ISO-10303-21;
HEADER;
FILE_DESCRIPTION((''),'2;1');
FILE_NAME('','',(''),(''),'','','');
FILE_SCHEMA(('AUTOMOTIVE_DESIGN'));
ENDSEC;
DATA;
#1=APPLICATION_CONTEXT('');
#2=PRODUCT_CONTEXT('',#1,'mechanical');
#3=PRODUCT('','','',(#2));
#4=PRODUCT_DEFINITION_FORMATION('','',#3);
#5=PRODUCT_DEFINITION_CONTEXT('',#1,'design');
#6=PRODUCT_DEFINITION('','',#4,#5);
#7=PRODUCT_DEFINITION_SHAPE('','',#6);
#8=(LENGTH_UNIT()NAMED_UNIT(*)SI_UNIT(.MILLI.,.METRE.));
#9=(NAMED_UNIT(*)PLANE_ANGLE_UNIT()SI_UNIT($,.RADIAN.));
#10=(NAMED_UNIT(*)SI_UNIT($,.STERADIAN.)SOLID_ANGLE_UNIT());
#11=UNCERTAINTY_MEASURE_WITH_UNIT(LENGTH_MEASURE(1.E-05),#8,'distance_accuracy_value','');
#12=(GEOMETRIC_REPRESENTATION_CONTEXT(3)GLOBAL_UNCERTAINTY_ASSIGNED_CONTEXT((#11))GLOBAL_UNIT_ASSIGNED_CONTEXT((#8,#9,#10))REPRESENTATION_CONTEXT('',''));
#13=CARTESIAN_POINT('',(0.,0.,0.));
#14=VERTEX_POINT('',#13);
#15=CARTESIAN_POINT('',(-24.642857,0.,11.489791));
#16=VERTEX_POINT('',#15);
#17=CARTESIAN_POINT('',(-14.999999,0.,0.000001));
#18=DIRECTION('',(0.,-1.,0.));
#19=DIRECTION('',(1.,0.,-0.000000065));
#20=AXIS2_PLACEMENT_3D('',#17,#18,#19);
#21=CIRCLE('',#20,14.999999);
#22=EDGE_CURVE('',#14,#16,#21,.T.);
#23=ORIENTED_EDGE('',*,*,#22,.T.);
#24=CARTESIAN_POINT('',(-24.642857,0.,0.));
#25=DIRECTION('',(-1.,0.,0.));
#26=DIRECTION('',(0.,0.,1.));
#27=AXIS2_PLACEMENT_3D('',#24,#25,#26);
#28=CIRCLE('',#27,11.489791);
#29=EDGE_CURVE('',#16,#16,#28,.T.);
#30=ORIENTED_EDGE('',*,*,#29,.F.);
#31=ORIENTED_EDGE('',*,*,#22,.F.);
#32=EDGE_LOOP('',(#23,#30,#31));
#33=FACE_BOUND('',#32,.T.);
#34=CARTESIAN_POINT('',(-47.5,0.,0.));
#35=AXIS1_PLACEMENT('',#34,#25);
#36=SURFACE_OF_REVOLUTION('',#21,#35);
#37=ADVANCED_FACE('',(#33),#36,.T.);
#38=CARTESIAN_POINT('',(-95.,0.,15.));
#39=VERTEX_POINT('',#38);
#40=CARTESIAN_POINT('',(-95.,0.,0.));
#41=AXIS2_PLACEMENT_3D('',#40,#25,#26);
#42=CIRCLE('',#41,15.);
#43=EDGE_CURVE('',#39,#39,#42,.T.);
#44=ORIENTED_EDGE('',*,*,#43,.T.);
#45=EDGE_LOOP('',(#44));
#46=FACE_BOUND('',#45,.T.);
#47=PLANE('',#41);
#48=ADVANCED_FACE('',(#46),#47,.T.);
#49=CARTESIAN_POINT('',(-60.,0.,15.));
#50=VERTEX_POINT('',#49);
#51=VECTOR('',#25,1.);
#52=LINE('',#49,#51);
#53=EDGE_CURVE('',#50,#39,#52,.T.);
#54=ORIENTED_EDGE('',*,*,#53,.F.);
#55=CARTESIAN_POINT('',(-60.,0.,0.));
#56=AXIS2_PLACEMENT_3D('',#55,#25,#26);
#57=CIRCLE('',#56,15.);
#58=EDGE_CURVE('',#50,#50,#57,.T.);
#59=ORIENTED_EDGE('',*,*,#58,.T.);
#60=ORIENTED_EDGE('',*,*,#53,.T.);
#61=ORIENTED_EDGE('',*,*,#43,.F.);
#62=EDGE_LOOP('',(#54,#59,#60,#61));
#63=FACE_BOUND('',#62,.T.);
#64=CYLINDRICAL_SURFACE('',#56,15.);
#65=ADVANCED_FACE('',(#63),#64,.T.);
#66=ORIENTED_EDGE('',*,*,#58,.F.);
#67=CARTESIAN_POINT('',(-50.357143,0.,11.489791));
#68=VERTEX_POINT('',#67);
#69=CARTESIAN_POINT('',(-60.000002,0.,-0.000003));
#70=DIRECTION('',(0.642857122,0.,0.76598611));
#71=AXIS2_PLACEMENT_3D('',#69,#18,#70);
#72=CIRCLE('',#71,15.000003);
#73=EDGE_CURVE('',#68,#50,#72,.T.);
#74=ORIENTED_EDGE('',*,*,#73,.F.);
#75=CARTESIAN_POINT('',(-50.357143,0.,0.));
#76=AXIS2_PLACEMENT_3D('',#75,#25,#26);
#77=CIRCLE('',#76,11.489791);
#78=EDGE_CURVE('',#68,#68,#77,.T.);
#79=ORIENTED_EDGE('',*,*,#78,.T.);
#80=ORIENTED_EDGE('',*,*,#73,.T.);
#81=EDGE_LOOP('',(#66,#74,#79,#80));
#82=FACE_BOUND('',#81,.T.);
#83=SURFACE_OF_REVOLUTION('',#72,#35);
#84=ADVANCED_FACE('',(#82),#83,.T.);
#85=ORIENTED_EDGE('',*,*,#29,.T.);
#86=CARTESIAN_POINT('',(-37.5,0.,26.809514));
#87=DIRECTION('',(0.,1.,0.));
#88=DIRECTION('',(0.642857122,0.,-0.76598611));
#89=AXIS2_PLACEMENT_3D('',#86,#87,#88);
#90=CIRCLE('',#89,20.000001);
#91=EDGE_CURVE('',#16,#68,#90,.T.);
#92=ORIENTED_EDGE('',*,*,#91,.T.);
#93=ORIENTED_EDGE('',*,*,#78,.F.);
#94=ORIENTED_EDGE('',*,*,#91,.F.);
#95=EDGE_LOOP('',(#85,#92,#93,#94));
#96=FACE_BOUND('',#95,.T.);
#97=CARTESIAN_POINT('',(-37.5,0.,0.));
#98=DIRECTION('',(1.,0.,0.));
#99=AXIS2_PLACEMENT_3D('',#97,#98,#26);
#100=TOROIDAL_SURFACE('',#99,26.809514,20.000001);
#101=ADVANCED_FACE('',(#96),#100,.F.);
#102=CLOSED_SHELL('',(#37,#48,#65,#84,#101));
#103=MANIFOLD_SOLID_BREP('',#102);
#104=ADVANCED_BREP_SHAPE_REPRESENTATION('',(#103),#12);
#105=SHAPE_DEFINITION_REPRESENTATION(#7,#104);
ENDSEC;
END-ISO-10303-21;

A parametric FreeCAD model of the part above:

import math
import FreeCAD as App
import Part
import Sketcher

doc = App.newDocument("Part")
params = doc.addObject("Spreadsheet::Sheet", "Params")
for row, (alias, value) in enumerate([
    ("sketch1_radius", "14.999999 mm"),
    ("sketch1_radius2", "20.000001 mm"),
    ("sketch1_width", "95 mm"),
    ("sketch1_width2", "35 mm"),
    ("sketch1_height", "15 mm"),
    ("revolution_angle", "360 deg"),
], start=1):
    params.set(f"A{row}", alias)
    params.set(f"B{row}", "=" + value)
    params.setAlias(f"B{row}", alias)

body = doc.addObject("PartDesign::Body", "Body")

# Sketch on XZ plane
sketch1 = body.newObject("Sketcher::SketchObject", "Sketch")
sketch1.AttachmentSupport = (doc.getObject("XZ_Plane"), [""])
sketch1.MapMode = "FlatFace"
sketch1.addGeometry([
    Part.LineSegment(App.Vector(-95, 0, 0), App.Vector(0, 0, 0)),  # 0
    Part.ArcOfCircle(Part.Circle(App.Vector(-15, 0, 0), App.Vector(0, 0, 1), 15), math.radians(0), math.radians(130)),  # 1
    Part.ArcOfCircle(Part.Circle(App.Vector(-38, 27, 0), App.Vector(0, 0, 1), 20), math.radians(-130), math.radians(-50)),  # 2
    Part.ArcOfCircle(Part.Circle(App.Vector(-60, 0, 0), App.Vector(0, 0, 1), 15), math.radians(50), math.radians(90)),  # 3
    Part.LineSegment(App.Vector(-60, 15, 0), App.Vector(-95, 15, 0)),  # 4
    Part.LineSegment(App.Vector(-95, 15, 0), App.Vector(-95, 0, 0)),  # 5
], False)
sketch1.addConstraint([
    Sketcher.Constraint("Coincident", 0, 2, 1, 1),
    Sketcher.Constraint("Tangent", 1, 2, 2, 2),
    Sketcher.Constraint("Tangent", 2, 1, 3, 1),
    Sketcher.Constraint("Tangent", 3, 2, 4, 1),
    Sketcher.Constraint("Coincident", 4, 2, 5, 1),
    Sketcher.Constraint("Coincident", 5, 2, 0, 1),
    Sketcher.Constraint("Horizontal", 0),
    Sketcher.Constraint("Horizontal", 4),
    Sketcher.Constraint("Vertical", 5),
    Sketcher.Constraint("Coincident", 0, 2, -1, 1),
    Sketcher.Constraint("PointOnObject", 1, 3, -1),
    Sketcher.Constraint("Horizontal", 1, 2, 2, 1),
    Sketcher.Constraint("Radius", 1, 14.999999),
    Sketcher.Constraint("Radius", 2, 20.000001),
    Sketcher.Constraint("DistanceX", 0, 1, 0, 2, 95.0),
    Sketcher.Constraint("DistanceX", 4, 2, 4, 1, 35.0),
    Sketcher.Constraint("DistanceY", 5, 2, 5, 1, 15.0),
])
sketch1.setExpression("Constraints[12]", "Params.sketch1_radius")
sketch1.setExpression("Constraints[13]", "Params.sketch1_radius2")
sketch1.setExpression("Constraints[14]", "Params.sketch1_width")
sketch1.setExpression("Constraints[15]", "Params.sketch1_width2")
sketch1.setExpression("Constraints[16]", "Params.sketch1_height")
revolution = body.newObject("PartDesign::Revolution", "Revolution")
revolution.Profile = sketch1
revolution.ReferenceAxis = (sketch1, ["H_Axis"])
revolution.setExpression("Angle", "Params.revolution_angle")

doc.recompute()
